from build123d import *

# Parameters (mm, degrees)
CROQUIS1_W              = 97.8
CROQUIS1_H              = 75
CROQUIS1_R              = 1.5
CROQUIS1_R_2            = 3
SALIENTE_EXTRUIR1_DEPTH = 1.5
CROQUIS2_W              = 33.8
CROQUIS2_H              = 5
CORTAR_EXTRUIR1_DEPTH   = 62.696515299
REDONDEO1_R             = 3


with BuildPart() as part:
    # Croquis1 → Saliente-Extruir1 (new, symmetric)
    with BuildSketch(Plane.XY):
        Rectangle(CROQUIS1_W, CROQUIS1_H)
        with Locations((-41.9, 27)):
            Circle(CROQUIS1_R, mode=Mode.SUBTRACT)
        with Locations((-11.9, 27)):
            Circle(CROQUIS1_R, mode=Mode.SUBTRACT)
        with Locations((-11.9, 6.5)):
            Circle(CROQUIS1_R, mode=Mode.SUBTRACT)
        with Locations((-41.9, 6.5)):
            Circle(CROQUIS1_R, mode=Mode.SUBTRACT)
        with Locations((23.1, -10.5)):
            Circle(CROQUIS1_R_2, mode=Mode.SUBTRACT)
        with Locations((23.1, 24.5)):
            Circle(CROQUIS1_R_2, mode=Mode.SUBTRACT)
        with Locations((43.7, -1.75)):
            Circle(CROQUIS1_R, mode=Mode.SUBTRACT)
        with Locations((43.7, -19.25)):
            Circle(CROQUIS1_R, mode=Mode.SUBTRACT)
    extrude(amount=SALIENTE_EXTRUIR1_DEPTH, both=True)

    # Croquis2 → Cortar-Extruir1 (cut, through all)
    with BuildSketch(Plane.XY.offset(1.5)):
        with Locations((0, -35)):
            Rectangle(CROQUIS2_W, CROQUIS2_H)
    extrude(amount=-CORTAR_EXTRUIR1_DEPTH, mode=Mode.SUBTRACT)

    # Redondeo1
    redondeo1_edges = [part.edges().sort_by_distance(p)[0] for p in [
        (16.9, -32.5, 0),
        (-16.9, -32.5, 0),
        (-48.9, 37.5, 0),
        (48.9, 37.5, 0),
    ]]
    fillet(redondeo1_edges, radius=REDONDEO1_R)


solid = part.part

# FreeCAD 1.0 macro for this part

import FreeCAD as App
import Part
import Sketcher

V = App.Vector
Q = App.Units.Quantity


def edges_at(feature, points):
    """Names of the edges that pass closest to the given points."""
    edges = feature.Shape.Edges
    near = lambda p: min(range(len(edges)), key=lambda i: edges[i].distToShape(Part.Vertex(*p))[0])
    return sorted({f"Edge{near(p) + 1}" for p in points})

doc = App.newDocument("Part")
body = doc.addObject("PartDesign::Body", "Body")

# Sketch on XY plane
sketch1 = body.newObject("Sketcher::SketchObject", "Sketch")
sketch1.AttachmentSupport = (doc.getObject("XY_Plane"), [""])
sketch1.MapMode = "FlatFace"
sketch1.addGeometry(Part.LineSegment(V(-48.9, 37.5, 0), V(-48.9, -37.5, 0)), False)
sketch1.addGeometry(Part.LineSegment(V(-48.9, -37.5, 0), V(48.9, -37.5, 0)), False)
sketch1.addGeometry(Part.LineSegment(V(48.9, -37.5, 0), V(48.9, 37.5, 0)), False)
sketch1.addGeometry(Part.LineSegment(V(48.9, 37.5, 0), V(-48.9, 37.5, 0)), False)
sketch1.addGeometry(Part.Circle(V(43.7, -19.2, 0), V(0, 0, 1), 1.5), False)
sketch1.addGeometry(Part.Circle(V(23.1, -10.5, 0), V(0, 0, 1), 3), False)
sketch1.addGeometry(Part.Circle(V(43.7, -1.8, 0), V(0, 0, 1), 1.5), False)
sketch1.addGeometry(Part.Circle(V(-41.9, 6.5, 0), V(0, 0, 1), 1.5), False)
sketch1.addGeometry(Part.Circle(V(-11.9, 6.5, 0), V(0, 0, 1), 1.5), False)
sketch1.addGeometry(Part.Circle(V(-41.9, 27, 0), V(0, 0, 1), 1.5), False)
sketch1.addGeometry(Part.Circle(V(-11.9, 27, 0), V(0, 0, 1), 1.5), False)
sketch1.addGeometry(Part.Circle(V(23.1, 24.5, 0), V(0, 0, 1), 3), False)
sketch1.addConstraint(Sketcher.Constraint("Coincident", 0, 2, 1, 1))
sketch1.addConstraint(Sketcher.Constraint("Coincident", 1, 2, 2, 1))
sketch1.addConstraint(Sketcher.Constraint("Coincident", 2, 2, 3, 1))
sketch1.addConstraint(Sketcher.Constraint("Coincident", 3, 2, 0, 1))
sketch1.addConstraint(Sketcher.Constraint("Vertical", 0))
sketch1.addConstraint(Sketcher.Constraint("Horizontal", 1))
sketch1.addConstraint(Sketcher.Constraint("Vertical", 2))
sketch1.addConstraint(Sketcher.Constraint("Horizontal", 3))
sketch1.addConstraint(Sketcher.Constraint("Equal", 4, 6))
sketch1.addConstraint(Sketcher.Constraint("Equal", 6, 7))
sketch1.addConstraint(Sketcher.Constraint("Equal", 7, 8))
sketch1.addConstraint(Sketcher.Constraint("Equal", 8, 9))
sketch1.addConstraint(Sketcher.Constraint("Equal", 9, 10))
sketch1.addConstraint(Sketcher.Constraint("Equal", 5, 11))
sketch1.addConstraint(Sketcher.Constraint("Symmetric", 0, 2, 2, 2, -1, 1))
sketch1.addConstraint(Sketcher.Constraint("Horizontal", 7, 3, 8, 3))
sketch1.addConstraint(Sketcher.Constraint("Horizontal", 9, 3, 10, 3))
sketch1.addConstraint(Sketcher.Constraint("Vertical", 4, 3, 6, 3))
sketch1.addConstraint(Sketcher.Constraint("Vertical", 7, 3, 9, 3))
sketch1.addConstraint(Sketcher.Constraint("Vertical", 8, 3, 10, 3))
sketch1.addConstraint(Sketcher.Constraint("Vertical", 5, 3, 11, 3))
sketch1.addConstraint(Sketcher.Constraint("Diameter", 4, Q("3 mm")))
sketch1.addConstraint(Sketcher.Constraint("Diameter", 5, Q("6 mm")))
sketch1.addConstraint(Sketcher.Constraint("DistanceY", 0, 2, 0, 1, Q("75 mm")))
sketch1.addConstraint(Sketcher.Constraint("DistanceX", 1, 1, 1, 2, Q("97.8 mm")))
sketch1.addConstraint(Sketcher.Constraint("DistanceY", -1, 1, 9, 3, Q("27 mm")))
sketch1.addConstraint(Sketcher.Constraint("DistanceX", 7, 3, 5, 3, Q("65 mm")))
sketch1.addConstraint(Sketcher.Constraint("DistanceY", 5, 3, 7, 3, Q("17 mm")))
sketch1.addConstraint(Sketcher.Constraint("DistanceX", 7, 3, 8, 3, Q("30 mm")))
sketch1.addConstraint(Sketcher.Constraint("DistanceY", 5, 3, 11, 3, Q("35 mm")))
sketch1.addConstraint(Sketcher.Constraint("DistanceX", 0, 2, 7, 3, Q("7 mm")))
sketch1.addConstraint(Sketcher.Constraint("DistanceY", 0, 2, 7, 3, Q("44 mm")))
sketch1.addConstraint(Sketcher.Constraint("DistanceX", -1, 1, 4, 3, Q("43.7 mm")))
sketch1.addConstraint(Sketcher.Constraint("DistanceY", 4, 3, 6, 3, Q("17.5 mm")))
sketch1.addConstraint(Sketcher.Constraint("DistanceY", 4, 3, -1, 1, Q("19.25 mm")))
pad1 = body.newObject("PartDesign::Pad", "Pad")
pad1.Profile = sketch1
pad1.Length = 3
pad1.Midplane = True

# Sketch on XY plane
sketch2 = body.newObject("Sketcher::SketchObject", "Sketch001")
sketch2.AttachmentSupport = (doc.getObject("XY_Plane"), [""])
sketch2.MapMode = "FlatFace"
sketch2.AttachmentOffset = App.Placement(V(0, 0, 1.5), App.Rotation())
sketch2.addGeometry(Part.LineSegment(V(-17, -32, 0), V(-17, -38, 0)), False)
sketch2.addGeometry(Part.LineSegment(V(-17, -38, 0), V(17, -38, 0)), False)
sketch2.addGeometry(Part.LineSegment(V(17, -38, 0), V(17, -32, 0)), False)
sketch2.addGeometry(Part.LineSegment(V(17, -32, 0), V(-17, -32, 0)), False)
sketch2.addConstraint(Sketcher.Constraint("Coincident", 0, 2, 1, 1))
sketch2.addConstraint(Sketcher.Constraint("Coincident", 1, 2, 2, 1))
sketch2.addConstraint(Sketcher.Constraint("Coincident", 2, 2, 3, 1))
sketch2.addConstraint(Sketcher.Constraint("Coincident", 3, 2, 0, 1))
sketch2.addConstraint(Sketcher.Constraint("Vertical", 0))
sketch2.addConstraint(Sketcher.Constraint("Horizontal", 1))
sketch2.addConstraint(Sketcher.Constraint("Vertical", 2))
sketch2.addConstraint(Sketcher.Constraint("Horizontal", 3))
sketch2.addConstraint(Sketcher.Constraint("DistanceY", 0, 2, 0, 1, Q("5 mm")))
sketch2.addConstraint(Sketcher.Constraint("DistanceX", 1, 1, 1, 2, Q("33.8 mm")))
sketch2.addConstraint(Sketcher.Constraint("DistanceX", 0, 2, -1, 1, Q("16.9 mm")))
sketch2.addConstraint(Sketcher.Constraint("DistanceY", 0, 2, -1, 1, Q("37.5 mm")))
pocket1 = body.newObject("PartDesign::Pocket", "Pocket")
pocket1.Profile = sketch2
pocket1.Type = "ThroughAll"
doc.recompute()

fillet = body.newObject("PartDesign::Fillet", "Fillet")
fillet.Base = (pocket1, edges_at(pocket1, [
    (16.9, -32.5, 0),
    (-16.9, -32.5, 0),
    (-48.9, 37.5, 0),
    (48.9, 37.5, 0),
]))
fillet.Radius = 3

doc.recompute()
